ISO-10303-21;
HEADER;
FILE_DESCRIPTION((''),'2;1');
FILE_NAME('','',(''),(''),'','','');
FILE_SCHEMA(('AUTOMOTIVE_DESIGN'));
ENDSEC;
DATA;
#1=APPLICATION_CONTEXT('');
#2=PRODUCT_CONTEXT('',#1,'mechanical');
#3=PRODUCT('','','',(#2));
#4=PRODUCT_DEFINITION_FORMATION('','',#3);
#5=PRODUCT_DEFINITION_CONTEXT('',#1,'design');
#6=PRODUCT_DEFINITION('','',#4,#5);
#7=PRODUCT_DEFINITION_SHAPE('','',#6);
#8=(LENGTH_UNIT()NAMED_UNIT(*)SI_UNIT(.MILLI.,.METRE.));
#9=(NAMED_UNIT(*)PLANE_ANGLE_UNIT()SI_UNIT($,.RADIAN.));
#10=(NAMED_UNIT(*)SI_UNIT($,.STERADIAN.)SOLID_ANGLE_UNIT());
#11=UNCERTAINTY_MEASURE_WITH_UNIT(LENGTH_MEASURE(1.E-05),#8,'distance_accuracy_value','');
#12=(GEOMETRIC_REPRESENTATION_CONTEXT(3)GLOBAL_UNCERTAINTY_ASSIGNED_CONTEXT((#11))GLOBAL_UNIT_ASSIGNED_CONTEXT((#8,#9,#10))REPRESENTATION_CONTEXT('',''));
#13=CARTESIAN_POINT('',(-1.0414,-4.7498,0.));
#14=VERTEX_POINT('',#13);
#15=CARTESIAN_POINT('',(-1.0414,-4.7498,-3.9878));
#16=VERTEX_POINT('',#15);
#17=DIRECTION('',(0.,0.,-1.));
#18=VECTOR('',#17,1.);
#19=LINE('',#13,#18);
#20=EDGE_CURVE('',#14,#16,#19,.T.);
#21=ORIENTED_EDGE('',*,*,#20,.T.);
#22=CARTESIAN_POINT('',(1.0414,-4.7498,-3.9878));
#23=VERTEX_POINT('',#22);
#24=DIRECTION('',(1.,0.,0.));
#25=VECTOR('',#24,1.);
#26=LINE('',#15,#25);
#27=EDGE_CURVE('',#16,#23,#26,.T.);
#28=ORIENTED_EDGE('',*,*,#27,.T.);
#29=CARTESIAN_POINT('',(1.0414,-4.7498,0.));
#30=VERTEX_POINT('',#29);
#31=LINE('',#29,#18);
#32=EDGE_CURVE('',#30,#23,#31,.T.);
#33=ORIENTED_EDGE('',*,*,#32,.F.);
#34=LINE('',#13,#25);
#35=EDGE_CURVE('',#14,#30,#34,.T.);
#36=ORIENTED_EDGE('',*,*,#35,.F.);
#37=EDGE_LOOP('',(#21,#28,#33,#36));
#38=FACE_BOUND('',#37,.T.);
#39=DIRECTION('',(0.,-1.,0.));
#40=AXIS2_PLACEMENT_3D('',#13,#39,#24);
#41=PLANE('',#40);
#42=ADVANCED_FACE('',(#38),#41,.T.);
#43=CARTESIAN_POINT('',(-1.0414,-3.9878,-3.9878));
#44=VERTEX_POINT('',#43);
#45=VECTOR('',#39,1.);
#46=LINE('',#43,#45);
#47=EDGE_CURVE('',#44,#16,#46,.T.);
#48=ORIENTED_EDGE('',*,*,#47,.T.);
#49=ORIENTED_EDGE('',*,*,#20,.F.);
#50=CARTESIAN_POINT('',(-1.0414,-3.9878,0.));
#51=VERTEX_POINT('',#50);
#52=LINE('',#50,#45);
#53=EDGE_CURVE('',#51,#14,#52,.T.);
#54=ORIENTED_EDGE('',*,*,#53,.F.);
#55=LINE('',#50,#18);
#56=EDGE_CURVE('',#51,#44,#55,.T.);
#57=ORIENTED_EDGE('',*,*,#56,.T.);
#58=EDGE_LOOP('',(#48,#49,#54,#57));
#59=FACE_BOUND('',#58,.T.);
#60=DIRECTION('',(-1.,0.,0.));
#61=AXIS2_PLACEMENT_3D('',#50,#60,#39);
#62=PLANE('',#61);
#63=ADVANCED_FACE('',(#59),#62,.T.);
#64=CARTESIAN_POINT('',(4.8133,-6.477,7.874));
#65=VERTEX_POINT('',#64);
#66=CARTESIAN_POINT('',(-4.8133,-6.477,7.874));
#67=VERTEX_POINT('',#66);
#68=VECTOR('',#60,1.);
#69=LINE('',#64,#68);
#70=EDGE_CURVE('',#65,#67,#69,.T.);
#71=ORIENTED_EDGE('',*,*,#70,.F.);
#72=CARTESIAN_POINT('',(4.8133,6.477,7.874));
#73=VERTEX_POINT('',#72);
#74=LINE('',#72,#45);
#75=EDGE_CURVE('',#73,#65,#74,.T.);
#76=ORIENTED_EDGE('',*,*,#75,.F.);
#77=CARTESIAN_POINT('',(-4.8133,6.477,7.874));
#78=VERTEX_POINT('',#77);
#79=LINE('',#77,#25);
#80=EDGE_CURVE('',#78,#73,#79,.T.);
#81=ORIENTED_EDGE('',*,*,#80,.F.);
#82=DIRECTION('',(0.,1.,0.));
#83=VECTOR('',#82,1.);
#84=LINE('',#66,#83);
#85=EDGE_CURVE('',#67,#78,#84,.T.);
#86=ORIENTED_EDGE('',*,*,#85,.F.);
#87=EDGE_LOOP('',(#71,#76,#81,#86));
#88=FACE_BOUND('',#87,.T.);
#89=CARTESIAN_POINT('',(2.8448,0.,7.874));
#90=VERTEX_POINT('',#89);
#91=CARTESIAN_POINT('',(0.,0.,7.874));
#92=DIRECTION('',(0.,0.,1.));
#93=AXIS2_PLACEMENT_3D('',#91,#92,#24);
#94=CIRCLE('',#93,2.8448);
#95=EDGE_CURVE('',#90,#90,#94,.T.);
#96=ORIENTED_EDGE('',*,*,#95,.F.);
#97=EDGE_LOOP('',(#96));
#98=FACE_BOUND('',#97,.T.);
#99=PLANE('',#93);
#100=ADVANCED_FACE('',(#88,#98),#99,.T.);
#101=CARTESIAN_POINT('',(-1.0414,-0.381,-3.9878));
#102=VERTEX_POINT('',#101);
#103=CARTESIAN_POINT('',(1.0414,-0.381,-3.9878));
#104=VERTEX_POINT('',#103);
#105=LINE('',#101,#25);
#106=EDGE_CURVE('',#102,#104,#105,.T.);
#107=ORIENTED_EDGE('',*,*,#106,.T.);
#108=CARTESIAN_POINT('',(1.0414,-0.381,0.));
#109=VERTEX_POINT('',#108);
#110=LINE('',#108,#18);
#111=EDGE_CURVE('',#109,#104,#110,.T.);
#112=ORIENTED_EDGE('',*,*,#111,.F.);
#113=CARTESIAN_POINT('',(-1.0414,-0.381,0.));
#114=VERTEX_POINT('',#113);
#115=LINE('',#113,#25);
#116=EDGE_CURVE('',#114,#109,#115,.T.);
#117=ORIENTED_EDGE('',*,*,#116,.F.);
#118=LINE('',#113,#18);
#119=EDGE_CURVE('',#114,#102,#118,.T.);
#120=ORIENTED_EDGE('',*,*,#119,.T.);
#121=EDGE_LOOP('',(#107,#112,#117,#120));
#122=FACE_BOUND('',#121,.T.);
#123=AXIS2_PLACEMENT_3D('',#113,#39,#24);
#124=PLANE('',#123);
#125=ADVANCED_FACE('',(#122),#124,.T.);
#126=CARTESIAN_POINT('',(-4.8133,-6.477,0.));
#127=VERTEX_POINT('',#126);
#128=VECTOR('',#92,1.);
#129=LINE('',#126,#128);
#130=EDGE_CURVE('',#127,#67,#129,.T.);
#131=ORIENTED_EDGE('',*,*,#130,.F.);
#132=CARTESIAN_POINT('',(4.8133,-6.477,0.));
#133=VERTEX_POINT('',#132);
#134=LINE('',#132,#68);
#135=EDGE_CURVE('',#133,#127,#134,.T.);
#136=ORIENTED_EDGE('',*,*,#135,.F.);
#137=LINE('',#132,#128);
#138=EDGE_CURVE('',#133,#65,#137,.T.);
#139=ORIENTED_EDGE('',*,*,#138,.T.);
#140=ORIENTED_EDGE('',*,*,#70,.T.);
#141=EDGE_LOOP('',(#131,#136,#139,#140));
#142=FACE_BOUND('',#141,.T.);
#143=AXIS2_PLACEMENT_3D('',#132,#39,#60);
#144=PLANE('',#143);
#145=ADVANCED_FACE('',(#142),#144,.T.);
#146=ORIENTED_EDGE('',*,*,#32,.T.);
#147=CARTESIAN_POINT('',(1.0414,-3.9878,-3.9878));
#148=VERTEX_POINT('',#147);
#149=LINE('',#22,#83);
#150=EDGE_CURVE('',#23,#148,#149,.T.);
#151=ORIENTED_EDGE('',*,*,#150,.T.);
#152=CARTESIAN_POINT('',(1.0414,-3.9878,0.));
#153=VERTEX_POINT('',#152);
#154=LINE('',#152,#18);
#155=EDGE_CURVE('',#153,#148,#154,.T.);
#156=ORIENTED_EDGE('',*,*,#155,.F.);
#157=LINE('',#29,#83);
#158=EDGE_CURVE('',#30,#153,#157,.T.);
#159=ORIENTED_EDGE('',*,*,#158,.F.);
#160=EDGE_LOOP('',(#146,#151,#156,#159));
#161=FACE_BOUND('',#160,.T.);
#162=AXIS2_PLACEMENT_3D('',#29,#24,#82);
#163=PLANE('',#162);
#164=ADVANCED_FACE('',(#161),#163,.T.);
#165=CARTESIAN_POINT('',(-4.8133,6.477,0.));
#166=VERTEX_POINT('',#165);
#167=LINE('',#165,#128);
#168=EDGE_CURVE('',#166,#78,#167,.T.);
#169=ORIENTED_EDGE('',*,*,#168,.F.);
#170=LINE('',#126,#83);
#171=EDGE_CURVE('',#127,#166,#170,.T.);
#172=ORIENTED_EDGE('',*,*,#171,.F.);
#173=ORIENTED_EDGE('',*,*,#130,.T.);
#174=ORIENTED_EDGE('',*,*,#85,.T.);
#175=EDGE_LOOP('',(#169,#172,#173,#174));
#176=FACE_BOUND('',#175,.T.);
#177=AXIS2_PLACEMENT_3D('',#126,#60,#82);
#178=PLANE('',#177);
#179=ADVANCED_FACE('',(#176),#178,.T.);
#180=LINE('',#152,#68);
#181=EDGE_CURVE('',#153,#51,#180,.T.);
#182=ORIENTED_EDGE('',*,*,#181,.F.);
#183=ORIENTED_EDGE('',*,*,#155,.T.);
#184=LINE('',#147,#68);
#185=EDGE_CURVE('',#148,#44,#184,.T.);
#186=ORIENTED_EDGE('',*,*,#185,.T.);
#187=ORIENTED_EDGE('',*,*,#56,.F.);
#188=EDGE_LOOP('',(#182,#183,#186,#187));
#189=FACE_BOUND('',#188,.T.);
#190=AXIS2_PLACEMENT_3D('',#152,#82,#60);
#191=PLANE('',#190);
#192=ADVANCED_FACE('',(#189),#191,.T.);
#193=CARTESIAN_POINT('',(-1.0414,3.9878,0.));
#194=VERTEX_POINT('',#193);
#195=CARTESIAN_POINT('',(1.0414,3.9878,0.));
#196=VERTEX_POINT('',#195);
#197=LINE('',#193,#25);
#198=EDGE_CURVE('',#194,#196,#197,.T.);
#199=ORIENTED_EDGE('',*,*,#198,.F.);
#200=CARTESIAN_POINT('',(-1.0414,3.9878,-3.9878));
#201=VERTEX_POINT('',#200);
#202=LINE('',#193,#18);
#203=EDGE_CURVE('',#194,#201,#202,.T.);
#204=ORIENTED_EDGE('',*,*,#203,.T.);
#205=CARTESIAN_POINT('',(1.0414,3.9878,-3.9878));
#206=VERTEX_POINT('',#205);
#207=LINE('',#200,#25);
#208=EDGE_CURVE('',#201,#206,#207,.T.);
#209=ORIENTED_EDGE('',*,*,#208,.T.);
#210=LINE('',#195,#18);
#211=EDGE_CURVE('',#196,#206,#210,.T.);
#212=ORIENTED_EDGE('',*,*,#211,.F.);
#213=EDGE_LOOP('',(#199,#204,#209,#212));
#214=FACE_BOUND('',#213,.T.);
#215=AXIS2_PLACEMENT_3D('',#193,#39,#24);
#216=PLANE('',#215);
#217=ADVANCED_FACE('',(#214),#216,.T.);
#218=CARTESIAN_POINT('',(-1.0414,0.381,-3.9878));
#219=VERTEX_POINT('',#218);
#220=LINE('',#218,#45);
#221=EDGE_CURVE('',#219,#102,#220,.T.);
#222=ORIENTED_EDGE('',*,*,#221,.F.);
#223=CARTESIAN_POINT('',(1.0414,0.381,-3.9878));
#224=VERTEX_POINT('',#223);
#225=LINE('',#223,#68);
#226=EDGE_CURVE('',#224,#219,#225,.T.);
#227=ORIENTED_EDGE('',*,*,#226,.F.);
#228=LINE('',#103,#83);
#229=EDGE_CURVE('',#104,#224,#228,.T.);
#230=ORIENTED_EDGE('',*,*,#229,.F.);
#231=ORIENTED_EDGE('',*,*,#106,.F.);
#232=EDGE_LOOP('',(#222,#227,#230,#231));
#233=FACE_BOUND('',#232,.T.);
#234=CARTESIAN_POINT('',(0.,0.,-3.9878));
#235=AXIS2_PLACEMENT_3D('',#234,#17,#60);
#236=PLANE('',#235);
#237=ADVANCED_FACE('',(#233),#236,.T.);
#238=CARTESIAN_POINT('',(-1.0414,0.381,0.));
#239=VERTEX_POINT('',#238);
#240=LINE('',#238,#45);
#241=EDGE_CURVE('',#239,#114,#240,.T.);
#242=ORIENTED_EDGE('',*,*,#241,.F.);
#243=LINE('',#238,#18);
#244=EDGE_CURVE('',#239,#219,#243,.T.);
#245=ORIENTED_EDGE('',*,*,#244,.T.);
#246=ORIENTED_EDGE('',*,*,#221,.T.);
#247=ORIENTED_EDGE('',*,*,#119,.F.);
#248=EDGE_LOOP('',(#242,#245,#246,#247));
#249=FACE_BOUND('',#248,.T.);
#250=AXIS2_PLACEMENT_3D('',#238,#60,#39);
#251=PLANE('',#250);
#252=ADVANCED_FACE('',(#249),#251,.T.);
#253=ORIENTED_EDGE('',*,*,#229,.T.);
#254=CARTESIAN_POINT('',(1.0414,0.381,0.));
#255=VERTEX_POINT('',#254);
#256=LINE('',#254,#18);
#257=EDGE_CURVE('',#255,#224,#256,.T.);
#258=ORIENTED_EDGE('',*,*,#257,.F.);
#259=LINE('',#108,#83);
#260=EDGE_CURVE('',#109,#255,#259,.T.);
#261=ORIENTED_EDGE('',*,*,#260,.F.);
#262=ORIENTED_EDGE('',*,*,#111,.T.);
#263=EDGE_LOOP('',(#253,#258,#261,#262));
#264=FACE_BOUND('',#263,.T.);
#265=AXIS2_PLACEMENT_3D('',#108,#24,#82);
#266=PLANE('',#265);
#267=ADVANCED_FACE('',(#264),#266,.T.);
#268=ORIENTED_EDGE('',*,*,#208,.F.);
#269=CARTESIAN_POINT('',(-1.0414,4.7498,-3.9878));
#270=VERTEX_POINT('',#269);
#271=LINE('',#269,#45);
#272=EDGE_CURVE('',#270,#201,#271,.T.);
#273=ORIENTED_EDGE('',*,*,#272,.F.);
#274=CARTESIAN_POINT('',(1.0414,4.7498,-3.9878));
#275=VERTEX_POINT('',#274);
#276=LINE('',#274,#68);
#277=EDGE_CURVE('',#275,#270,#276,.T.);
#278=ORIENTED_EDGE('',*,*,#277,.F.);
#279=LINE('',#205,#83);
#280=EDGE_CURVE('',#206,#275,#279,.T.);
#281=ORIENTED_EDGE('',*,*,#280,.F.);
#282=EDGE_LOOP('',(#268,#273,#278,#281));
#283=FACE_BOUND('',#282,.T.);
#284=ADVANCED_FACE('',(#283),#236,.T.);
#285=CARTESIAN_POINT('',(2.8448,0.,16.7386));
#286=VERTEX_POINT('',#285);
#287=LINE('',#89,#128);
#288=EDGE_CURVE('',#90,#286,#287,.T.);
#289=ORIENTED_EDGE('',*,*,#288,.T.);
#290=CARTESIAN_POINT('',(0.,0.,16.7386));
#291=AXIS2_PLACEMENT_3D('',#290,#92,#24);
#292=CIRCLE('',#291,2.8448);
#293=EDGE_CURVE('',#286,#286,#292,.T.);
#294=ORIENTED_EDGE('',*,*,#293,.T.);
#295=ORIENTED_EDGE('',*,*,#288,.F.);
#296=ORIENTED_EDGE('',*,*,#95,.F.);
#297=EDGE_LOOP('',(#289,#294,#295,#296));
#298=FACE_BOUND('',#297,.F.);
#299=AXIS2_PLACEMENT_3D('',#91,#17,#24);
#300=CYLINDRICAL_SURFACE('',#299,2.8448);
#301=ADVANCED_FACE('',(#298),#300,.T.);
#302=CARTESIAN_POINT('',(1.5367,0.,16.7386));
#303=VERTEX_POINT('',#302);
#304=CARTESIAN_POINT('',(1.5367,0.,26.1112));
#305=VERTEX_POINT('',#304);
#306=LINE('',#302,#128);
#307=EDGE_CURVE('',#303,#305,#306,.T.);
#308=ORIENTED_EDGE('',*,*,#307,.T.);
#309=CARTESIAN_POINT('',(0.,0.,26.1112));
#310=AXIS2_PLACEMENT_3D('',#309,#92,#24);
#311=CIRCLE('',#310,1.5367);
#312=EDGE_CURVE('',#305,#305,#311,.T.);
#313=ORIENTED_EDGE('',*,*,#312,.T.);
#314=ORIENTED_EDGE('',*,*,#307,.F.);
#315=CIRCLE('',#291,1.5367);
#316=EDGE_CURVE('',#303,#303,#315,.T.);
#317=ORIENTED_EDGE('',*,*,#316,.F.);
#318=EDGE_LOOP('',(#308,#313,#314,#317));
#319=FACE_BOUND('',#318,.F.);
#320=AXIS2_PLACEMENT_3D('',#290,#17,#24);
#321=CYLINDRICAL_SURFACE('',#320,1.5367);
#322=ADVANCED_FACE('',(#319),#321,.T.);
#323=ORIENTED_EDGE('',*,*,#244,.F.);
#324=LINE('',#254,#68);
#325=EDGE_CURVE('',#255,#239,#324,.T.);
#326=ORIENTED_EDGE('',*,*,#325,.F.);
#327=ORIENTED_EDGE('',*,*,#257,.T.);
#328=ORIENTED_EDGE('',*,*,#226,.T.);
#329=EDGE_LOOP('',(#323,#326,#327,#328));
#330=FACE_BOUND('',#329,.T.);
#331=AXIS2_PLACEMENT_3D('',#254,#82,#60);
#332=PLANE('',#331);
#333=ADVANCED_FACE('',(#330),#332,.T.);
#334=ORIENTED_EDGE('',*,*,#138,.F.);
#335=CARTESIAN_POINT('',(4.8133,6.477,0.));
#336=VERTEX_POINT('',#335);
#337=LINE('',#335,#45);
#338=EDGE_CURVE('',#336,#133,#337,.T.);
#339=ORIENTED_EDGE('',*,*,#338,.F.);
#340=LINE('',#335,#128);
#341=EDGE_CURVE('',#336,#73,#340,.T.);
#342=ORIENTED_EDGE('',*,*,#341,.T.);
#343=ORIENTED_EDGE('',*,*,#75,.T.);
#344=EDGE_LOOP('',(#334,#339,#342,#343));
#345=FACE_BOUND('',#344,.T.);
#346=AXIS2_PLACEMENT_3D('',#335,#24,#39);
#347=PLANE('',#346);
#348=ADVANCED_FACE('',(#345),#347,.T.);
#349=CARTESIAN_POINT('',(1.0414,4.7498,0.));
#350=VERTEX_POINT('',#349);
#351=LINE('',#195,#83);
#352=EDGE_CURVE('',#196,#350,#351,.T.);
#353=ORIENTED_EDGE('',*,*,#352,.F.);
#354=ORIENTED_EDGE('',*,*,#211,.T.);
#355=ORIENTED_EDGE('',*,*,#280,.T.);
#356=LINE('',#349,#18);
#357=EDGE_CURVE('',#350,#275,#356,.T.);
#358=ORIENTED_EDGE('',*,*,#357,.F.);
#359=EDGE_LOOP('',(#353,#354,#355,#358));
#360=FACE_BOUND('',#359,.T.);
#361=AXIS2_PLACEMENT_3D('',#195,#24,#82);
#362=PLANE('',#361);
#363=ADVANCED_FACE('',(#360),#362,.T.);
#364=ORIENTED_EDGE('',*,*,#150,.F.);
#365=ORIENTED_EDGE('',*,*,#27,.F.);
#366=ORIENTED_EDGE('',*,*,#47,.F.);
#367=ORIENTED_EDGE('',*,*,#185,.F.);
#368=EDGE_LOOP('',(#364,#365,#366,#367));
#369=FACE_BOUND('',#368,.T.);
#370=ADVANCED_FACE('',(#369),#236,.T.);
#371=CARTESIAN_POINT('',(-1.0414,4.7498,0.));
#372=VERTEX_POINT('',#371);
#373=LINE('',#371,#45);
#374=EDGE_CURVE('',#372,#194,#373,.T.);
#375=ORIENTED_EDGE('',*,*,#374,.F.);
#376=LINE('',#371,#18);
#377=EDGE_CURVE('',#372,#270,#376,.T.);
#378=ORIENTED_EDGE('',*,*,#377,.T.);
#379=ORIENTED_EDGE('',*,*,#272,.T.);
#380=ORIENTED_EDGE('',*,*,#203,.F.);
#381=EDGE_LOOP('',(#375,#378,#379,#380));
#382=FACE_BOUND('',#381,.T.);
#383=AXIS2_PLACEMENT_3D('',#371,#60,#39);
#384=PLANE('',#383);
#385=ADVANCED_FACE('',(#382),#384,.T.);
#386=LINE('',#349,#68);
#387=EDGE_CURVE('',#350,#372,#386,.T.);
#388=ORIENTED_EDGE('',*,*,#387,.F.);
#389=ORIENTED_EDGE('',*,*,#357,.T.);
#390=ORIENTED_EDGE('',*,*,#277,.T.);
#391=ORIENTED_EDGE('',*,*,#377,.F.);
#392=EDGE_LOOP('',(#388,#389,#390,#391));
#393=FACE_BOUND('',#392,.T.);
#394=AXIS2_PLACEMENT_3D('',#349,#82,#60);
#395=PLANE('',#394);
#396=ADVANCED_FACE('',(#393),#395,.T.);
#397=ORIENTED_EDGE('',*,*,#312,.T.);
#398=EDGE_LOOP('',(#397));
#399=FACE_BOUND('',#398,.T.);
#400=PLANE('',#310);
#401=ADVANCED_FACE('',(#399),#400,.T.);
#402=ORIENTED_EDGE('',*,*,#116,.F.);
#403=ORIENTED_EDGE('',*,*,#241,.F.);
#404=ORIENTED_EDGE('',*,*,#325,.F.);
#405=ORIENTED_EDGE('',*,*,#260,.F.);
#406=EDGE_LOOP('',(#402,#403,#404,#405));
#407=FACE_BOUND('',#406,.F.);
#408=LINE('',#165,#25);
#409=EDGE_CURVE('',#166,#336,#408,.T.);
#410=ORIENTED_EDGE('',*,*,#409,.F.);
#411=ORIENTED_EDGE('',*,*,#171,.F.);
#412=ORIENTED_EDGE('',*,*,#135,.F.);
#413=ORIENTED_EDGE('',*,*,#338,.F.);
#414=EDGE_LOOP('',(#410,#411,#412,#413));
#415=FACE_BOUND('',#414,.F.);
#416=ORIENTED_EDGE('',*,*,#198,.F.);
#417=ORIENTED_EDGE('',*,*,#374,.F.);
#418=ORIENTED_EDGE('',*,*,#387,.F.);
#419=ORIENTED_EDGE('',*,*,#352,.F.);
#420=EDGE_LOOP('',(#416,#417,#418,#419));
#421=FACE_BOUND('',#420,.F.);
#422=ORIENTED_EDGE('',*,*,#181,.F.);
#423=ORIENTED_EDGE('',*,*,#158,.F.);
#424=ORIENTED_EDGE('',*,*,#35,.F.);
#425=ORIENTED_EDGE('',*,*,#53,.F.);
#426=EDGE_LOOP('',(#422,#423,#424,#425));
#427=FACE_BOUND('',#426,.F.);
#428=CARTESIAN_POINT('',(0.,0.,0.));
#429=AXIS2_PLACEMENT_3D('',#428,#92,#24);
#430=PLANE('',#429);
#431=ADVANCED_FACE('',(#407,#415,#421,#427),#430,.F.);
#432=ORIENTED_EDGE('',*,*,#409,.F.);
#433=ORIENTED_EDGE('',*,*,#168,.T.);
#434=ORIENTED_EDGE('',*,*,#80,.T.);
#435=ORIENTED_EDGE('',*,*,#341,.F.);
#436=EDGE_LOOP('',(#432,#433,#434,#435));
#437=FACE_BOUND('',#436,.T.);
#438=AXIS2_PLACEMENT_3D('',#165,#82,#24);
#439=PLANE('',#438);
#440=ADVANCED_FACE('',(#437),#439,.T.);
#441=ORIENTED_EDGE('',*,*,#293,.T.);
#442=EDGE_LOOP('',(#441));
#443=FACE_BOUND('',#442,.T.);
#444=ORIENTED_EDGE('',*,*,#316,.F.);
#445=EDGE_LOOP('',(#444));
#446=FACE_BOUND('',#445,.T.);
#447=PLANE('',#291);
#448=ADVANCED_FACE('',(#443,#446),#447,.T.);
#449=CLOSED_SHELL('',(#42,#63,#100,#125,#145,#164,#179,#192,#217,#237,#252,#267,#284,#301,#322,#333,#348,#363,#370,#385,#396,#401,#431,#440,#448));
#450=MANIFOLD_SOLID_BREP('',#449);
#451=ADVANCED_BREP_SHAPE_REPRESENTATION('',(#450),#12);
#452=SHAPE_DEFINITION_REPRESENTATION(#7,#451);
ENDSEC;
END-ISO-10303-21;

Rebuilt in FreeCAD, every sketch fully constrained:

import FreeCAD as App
import Part
import Sketcher

V = App.Vector
Q = App.Units.Quantity

doc = App.newDocument("Part")
body = doc.addObject("PartDesign::Body", "Body")

# Sketch on XY plane
sketch1 = doc.addObject("Sketcher::SketchObject", "Sketch")
body.addObject(sketch1)
sketch1.AttachmentSupport = (doc.XY_Plane, [""])
sketch1.MapMode = "FlatFace"
sketch1.addGeometry([
    Part.LineSegment(V(5, 6, 0), V(-5, 6, 0)),
    Part.LineSegment(V(-5, 6, 0), V(-5, -6, 0)),
    Part.LineSegment(V(-5, -6, 0), V(5, -6, 0)),
    Part.LineSegment(V(5, -6, 0), V(5, 6, 0)),
], False)
sketch1.addConstraint([
    Sketcher.Constraint("Coincident", 0, 2, 1, 1),
    Sketcher.Constraint("Coincident", 1, 2, 2, 1),
    Sketcher.Constraint("Coincident", 2, 2, 3, 1),
    Sketcher.Constraint("Coincident", 3, 2, 0, 1),
    Sketcher.Constraint("Horizontal", 0),
    Sketcher.Constraint("Vertical", 1),
    Sketcher.Constraint("Horizontal", 2),
    Sketcher.Constraint("Vertical", 3),
    Sketcher.Constraint("Symmetric", 0, 2, 2, 2, -1, 1),
    Sketcher.Constraint("DistanceY", 1, 2, 1, 1, Q("0.51 in")),
    Sketcher.Constraint("DistanceX", 0, 2, 0, 1, Q("0.379 in")),
])
pad1 = doc.addObject("PartDesign::Pad", "Pad")
body.addObject(pad1)
pad1.Profile = sketch1
pad1.Length = Q("0.31 in")

# Sketch on XY plane
sketch2 = doc.addObject("Sketcher::SketchObject", "Sketch001")
body.addObject(sketch2)
sketch2.AttachmentSupport = (doc.XY_Plane, [""])
sketch2.MapMode = "FlatFace"
sketch2.addGeometry([
    Part.LineSegment(V(-1, 4.7, 0), V(1, 4.7, 0)),
    Part.LineSegment(V(1, 4.7, 0), V(1, 4, 0)),
    Part.LineSegment(V(1, 4, 0), V(-1, 4, 0)),
    Part.LineSegment(V(-1, 4, 0), V(-1, 4.7, 0)),
], False)
sketch2.addConstraint([
    Sketcher.Constraint("Coincident", 0, 2, 1, 1),
    Sketcher.Constraint("Coincident", 1, 2, 2, 1),
    Sketcher.Constraint("Coincident", 2, 2, 3, 1),
    Sketcher.Constraint("Coincident", 3, 2, 0, 1),
    Sketcher.Constraint("Horizontal", 0),
    Sketcher.Constraint("Vertical", 1),
    Sketcher.Constraint("Horizontal", 2),
    Sketcher.Constraint("Vertical", 3),
    Sketcher.Constraint("DistanceY", 1, 2, 1, 1, Q("0.03 in")),
    Sketcher.Constraint("DistanceX", 0, 1, 0, 2, Q("0.082 in")),
    Sketcher.Constraint("DistanceX", -1, 1, 0, 2, Q("0.041 in")),
    Sketcher.Constraint("DistanceY", -1, 1, 0, 2, Q("0.187 in")),
])
pad2 = doc.addObject("PartDesign::Pad", "Pad001")
body.addObject(pad2)
pad2.Profile = sketch2
pad2.Length = Q("0.157 in")
pad2.Reversed = True

# Sketch on XY plane
sketch3 = doc.addObject("Sketcher::SketchObject", "Sketch002")
body.addObject(sketch3)
sketch3.AttachmentSupport = (doc.XY_Plane, [""])
sketch3.MapMode = "FlatFace"
sketch3.addGeometry([
    Part.LineSegment(V(-1, 0.4, 0), V(1, 0.4, 0)),
    Part.LineSegment(V(1, 0.4, 0), V(1, -0.4, 0)),
    Part.LineSegment(V(1, -0.4, 0), V(-1, -0.4, 0)),
    Part.LineSegment(V(-1, -0.4, 0), V(-1, 0.4, 0)),
], False)
sketch3.addConstraint([
    Sketcher.Constraint("Coincident", 0, 2, 1, 1),
    Sketcher.Constraint("Coincident", 1, 2, 2, 1),
    Sketcher.Constraint("Coincident", 2, 2, 3, 1),
    Sketcher.Constraint("Coincident", 3, 2, 0, 1),
    Sketcher.Constraint("Horizontal", 0),
    Sketcher.Constraint("Vertical", 1),
    Sketcher.Constraint("Horizontal", 2),
    Sketcher.Constraint("Vertical", 3),
    Sketcher.Constraint("Symmetric", 0, 2, 2, 2, -1, 1),
    Sketcher.Constraint("DistanceY", 1, 2, 1, 1, Q("0.03 in")),
    Sketcher.Constraint("DistanceX", 0, 1, 0, 2, Q("0.082 in")),
])
pad3 = doc.addObject("PartDesign::Pad", "Pad002")
body.addObject(pad3)
pad3.Profile = sketch3
pad3.Length = Q("0.157 in")
pad3.Reversed = True

# Sketch on XY plane
sketch4 = doc.addObject("Sketcher::SketchObject", "Sketch003")
body.addObject(sketch4)
sketch4.AttachmentSupport = (doc.XY_Plane, [""])
sketch4.MapMode = "FlatFace"
sketch4.addGeometry([
    Part.LineSegment(V(-1, -4, 0), V(1, -4, 0)),
    Part.LineSegment(V(1, -4, 0), V(1, -4.7, 0)),
    Part.LineSegment(V(1, -4.7, 0), V(-1, -4.7, 0)),
    Part.LineSegment(V(-1, -4.7, 0), V(-1, -4, 0)),
], False)
sketch4.addConstraint([
    Sketcher.Constraint("Coincident", 0, 2, 1, 1),
    Sketcher.Constraint("Coincident", 1, 2, 2, 1),
    Sketcher.Constraint("Coincident", 2, 2, 3, 1),
    Sketcher.Constraint("Coincident", 3, 2, 0, 1),
    Sketcher.Constraint("Horizontal", 0),
    Sketcher.Constraint("Vertical", 1),
    Sketcher.Constraint("Horizontal", 2),
    Sketcher.Constraint("Vertical", 3),
    Sketcher.Constraint("DistanceY", 1, 2, 1, 1, Q("0.03 in")),
    Sketcher.Constraint("DistanceX", 0, 1, 0, 2, Q("0.082 in")),
    Sketcher.Constraint("DistanceX", -1, 1, 0, 2, Q("0.041 in")),
    Sketcher.Constraint("DistanceY", 0, 2, -1, 1, Q("0.157 in")),
])
pad4 = doc.addObject("PartDesign::Pad", "Pad003")
body.addObject(pad4)
pad4.Profile = sketch4
pad4.Length = Q("0.157 in")
pad4.Reversed = True

# Sketch on XY plane
sketch5 = doc.addObject("Sketcher::SketchObject", "Sketch004")
body.addObject(sketch5)
sketch5.AttachmentSupport = (doc.XY_Plane, [""])
sketch5.MapMode = "FlatFace"
sketch5.AttachmentOffset = App.Placement(V(0, 0, 0.31 * 25.4), App.Rotation())
sketch5.addGeometry(Part.Circle(V(0, 0, 0), V(0, 0, 1), 2.8), False)
sketch5.addConstraint([
    Sketcher.Constraint("Coincident", 0, 3, -1, 1),
    Sketcher.Constraint("Diameter", 0, Q("0.224 in")),
])
pad5 = doc.addObject("PartDesign::Pad", "Pad004")
body.addObject(pad5)
pad5.Profile = sketch5
pad5.Length = Q("0.349 in")

# Sketch on XY plane
sketch6 = doc.addObject("Sketcher::SketchObject", "Sketch005")
body.addObject(sketch6)
sketch6.AttachmentSupport = (doc.XY_Plane, [""])
sketch6.MapMode = "FlatFace"
sketch6.AttachmentOffset = App.Placement(V(0, 0, 0.659 * 25.4), App.Rotation())
sketch6.addGeometry(Part.Circle(V(0, 0, 0), V(0, 0, 1), 1.5), False)
sketch6.addConstraint([
    Sketcher.Constraint("Coincident", 0, 3, -1, 1),
    Sketcher.Constraint("Diameter", 0, Q("0.121 in")),
])
pad6 = doc.addObject("PartDesign::Pad", "Pad005")
body.addObject(pad6)
pad6.Profile = sketch6
pad6.Length = Q("0.369 in")

doc.recompute()
